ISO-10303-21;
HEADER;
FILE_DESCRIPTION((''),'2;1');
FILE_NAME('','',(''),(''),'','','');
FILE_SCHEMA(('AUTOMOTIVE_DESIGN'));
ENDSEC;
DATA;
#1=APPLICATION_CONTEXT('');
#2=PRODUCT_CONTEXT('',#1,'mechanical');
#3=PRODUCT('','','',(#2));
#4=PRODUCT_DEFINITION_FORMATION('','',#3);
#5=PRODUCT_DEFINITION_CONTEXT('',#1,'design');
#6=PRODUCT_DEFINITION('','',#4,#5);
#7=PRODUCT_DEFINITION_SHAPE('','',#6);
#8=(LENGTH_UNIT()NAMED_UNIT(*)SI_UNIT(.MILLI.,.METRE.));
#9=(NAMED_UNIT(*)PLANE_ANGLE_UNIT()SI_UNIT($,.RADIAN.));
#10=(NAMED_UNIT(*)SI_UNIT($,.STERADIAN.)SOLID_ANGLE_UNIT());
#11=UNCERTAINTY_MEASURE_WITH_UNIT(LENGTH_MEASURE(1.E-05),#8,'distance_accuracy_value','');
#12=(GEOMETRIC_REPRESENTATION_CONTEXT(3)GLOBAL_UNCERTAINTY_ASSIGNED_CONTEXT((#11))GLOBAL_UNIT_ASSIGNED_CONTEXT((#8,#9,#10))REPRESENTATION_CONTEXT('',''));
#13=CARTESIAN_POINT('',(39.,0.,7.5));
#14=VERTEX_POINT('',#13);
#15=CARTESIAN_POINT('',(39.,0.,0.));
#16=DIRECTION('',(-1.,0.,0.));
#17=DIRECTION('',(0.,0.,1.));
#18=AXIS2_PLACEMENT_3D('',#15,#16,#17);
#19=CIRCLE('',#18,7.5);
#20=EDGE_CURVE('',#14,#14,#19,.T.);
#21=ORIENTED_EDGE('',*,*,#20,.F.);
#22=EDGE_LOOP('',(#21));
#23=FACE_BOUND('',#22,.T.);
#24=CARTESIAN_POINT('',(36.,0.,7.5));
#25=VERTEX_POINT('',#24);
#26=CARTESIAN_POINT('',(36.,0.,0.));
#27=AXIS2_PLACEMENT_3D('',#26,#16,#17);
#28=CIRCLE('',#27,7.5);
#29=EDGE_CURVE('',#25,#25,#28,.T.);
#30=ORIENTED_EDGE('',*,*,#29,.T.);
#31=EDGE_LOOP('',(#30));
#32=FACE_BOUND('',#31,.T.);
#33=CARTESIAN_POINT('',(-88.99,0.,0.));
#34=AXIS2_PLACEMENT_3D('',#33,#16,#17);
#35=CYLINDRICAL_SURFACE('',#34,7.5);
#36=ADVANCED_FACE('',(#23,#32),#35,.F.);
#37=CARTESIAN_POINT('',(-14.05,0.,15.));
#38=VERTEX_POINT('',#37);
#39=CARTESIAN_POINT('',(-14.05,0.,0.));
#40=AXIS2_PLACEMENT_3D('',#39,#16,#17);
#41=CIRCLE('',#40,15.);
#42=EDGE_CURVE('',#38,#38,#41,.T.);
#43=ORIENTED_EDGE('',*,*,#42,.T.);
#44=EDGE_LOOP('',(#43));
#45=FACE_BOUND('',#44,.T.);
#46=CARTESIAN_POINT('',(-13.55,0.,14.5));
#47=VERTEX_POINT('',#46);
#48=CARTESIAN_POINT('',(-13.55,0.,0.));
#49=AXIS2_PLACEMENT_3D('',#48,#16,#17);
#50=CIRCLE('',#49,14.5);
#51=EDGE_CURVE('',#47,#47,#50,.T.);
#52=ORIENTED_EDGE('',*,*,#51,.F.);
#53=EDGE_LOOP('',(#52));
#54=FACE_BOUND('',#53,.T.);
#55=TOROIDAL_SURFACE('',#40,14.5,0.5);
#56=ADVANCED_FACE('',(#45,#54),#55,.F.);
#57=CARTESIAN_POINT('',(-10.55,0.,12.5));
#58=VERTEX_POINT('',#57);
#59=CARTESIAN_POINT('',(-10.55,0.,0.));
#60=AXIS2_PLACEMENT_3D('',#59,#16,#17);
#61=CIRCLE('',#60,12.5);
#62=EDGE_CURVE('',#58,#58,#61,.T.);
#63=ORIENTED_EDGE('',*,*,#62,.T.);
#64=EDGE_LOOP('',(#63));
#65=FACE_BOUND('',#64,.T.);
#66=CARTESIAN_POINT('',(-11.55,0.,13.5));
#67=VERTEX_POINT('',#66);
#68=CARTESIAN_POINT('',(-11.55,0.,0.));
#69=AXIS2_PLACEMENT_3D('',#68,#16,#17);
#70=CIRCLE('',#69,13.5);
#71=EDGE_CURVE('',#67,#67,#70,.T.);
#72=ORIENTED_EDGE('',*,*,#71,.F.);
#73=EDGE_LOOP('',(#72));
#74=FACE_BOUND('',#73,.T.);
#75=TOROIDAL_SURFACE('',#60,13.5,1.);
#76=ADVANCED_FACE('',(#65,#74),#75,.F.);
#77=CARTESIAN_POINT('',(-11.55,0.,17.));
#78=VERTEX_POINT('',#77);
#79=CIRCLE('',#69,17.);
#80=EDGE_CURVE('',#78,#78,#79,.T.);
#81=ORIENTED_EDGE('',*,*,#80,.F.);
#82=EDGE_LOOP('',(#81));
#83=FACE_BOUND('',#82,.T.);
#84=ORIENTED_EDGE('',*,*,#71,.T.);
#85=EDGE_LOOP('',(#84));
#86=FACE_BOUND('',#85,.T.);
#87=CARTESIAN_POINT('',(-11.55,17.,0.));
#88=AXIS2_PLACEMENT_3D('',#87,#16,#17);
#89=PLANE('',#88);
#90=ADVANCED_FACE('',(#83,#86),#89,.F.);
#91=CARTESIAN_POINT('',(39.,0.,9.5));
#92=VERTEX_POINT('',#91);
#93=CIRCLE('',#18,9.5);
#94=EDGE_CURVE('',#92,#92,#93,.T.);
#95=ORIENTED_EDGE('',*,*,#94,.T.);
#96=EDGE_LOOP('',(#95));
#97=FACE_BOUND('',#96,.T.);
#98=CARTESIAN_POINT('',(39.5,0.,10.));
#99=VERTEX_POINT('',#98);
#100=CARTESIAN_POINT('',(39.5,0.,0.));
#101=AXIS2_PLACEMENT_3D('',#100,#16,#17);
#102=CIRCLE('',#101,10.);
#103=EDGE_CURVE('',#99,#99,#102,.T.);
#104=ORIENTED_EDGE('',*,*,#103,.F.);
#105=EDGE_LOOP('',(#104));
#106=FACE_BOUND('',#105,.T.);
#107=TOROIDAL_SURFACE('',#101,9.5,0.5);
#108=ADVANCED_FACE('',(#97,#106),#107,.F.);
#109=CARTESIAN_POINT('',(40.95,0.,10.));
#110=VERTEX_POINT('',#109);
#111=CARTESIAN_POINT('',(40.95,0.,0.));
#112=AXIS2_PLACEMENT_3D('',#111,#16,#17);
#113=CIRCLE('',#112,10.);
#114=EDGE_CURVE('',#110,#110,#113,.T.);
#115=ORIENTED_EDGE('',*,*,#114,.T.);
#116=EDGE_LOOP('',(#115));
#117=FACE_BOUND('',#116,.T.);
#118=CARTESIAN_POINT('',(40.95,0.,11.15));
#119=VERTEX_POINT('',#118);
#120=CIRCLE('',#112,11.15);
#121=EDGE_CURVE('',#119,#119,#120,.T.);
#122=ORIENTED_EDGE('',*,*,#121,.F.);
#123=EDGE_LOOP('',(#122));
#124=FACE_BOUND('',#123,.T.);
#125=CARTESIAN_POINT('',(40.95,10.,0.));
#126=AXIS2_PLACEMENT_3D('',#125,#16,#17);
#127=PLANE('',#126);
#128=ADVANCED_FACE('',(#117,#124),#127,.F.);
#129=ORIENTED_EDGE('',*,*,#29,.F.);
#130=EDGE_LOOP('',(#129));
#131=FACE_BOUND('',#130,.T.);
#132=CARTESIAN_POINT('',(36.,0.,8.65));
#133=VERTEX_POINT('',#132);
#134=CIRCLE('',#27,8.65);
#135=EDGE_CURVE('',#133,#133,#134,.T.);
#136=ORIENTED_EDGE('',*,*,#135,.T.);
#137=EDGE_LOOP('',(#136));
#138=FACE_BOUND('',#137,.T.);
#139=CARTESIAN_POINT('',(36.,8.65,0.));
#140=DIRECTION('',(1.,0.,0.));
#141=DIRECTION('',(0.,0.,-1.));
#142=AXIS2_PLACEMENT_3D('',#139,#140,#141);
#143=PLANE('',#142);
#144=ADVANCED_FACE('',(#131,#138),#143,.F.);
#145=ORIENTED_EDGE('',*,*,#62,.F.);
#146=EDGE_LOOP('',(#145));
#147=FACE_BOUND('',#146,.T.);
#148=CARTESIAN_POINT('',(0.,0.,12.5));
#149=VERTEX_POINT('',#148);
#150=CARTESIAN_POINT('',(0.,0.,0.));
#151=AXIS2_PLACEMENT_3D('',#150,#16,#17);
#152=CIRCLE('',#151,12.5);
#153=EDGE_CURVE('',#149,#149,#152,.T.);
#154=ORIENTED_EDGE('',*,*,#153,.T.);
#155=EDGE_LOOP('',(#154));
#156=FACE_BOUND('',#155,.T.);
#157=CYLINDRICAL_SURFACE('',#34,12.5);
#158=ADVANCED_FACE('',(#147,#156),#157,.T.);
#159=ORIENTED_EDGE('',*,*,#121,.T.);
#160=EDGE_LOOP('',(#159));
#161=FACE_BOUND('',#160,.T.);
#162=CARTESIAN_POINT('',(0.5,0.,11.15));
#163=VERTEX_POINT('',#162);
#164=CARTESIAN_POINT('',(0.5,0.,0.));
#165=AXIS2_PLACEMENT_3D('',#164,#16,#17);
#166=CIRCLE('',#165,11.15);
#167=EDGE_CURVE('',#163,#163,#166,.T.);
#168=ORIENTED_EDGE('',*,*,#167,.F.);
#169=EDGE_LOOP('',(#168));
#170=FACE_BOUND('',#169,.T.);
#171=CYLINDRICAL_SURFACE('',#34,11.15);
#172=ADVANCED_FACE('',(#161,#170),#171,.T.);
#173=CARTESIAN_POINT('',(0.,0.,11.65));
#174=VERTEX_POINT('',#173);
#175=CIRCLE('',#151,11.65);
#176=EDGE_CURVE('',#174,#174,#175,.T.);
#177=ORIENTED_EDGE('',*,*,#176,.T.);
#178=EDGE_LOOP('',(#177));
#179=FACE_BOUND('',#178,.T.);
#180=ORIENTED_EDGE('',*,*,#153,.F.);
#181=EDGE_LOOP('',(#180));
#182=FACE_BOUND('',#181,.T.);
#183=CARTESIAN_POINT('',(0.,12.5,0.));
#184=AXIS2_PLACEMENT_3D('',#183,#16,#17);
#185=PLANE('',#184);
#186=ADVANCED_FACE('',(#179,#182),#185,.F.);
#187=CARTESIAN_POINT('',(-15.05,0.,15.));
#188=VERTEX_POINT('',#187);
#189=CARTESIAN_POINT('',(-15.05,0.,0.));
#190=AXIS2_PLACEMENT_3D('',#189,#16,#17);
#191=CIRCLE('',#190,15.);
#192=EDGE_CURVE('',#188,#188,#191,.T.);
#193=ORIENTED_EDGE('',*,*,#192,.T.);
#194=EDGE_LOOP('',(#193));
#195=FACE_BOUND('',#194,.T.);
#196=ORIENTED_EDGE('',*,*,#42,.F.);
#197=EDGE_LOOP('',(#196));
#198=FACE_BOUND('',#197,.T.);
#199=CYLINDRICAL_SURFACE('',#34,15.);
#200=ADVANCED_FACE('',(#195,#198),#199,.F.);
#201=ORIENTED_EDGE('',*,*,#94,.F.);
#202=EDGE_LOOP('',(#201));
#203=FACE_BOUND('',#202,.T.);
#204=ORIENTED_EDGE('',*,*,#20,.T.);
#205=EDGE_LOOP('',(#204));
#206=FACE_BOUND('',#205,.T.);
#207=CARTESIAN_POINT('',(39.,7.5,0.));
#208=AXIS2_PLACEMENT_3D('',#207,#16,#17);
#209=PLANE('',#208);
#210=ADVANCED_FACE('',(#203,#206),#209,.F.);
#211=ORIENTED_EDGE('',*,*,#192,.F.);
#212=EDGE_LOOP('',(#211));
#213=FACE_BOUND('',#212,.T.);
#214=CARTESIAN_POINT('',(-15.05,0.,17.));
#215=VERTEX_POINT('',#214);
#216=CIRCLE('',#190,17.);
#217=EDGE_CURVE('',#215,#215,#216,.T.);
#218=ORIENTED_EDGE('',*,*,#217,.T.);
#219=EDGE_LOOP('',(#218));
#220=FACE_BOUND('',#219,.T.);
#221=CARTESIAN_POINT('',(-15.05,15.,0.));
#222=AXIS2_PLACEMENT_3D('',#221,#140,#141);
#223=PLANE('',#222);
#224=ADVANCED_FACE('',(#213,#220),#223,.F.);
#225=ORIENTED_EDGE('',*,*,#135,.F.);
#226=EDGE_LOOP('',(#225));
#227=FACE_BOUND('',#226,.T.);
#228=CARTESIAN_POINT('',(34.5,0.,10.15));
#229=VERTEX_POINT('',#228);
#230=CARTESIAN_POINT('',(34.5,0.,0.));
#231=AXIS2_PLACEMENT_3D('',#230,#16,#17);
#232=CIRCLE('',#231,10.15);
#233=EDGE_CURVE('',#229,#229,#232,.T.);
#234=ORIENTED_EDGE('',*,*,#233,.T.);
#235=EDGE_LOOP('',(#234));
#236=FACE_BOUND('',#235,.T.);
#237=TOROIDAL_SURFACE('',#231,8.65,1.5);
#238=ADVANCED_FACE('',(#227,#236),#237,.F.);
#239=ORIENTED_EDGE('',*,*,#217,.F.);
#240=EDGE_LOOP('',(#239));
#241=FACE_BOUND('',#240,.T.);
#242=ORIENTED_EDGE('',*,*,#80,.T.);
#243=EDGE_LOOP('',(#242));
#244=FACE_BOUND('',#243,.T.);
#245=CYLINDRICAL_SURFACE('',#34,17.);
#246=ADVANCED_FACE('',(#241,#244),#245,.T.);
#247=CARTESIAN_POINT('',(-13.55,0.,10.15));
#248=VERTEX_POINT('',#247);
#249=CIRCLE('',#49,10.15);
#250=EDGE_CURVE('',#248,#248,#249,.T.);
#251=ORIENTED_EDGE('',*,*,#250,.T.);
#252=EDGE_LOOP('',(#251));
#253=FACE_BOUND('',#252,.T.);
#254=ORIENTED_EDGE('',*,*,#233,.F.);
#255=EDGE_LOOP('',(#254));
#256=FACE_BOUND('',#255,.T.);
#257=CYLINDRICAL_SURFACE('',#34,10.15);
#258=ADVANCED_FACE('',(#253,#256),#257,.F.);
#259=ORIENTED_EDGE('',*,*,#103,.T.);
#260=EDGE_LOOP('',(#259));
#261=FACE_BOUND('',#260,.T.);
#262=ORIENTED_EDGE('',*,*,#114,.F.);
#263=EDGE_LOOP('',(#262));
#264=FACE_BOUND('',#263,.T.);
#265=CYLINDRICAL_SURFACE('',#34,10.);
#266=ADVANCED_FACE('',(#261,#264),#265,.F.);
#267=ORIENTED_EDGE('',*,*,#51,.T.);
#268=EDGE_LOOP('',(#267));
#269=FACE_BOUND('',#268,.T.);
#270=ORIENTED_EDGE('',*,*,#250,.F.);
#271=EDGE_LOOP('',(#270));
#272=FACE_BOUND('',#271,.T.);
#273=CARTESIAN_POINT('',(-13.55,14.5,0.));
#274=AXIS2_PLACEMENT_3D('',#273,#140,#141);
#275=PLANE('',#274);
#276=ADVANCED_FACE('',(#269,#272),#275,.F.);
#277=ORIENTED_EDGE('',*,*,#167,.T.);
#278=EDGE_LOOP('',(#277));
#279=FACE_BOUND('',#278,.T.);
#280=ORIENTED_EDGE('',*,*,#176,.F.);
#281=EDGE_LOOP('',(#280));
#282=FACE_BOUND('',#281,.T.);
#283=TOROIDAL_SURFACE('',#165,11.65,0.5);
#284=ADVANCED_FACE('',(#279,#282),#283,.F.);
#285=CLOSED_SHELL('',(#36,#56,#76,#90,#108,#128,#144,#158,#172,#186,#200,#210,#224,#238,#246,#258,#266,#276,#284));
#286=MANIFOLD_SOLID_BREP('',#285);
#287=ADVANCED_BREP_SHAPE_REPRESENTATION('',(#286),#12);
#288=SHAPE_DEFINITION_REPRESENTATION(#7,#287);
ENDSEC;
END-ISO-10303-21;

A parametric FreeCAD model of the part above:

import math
import FreeCAD as App
import Part
import Sketcher
Q = App.Units.Quantity

doc = App.newDocument("Part")
body = doc.addObject("PartDesign::Body", "Body")

# Sketch on XY plane
sketch1 = body.newObject("Sketcher::SketchObject", "Sketch")
sketch1.AttachmentSupport = (doc.getObject("XY_Plane"), [""])
sketch1.MapMode = "FlatFace"
sketch1.addGeometry([
    Part.LineSegment(App.Vector(0, 11.65, 0), App.Vector(0, 12.5, 0)),  # 0
    Part.LineSegment(App.Vector(0, 12.5, 0), App.Vector(-10.55, 12.5, 0)),  # 1
    Part.ArcOfCircle(Part.Circle(App.Vector(-10.55, 13.5, 0), App.Vector(0, 0, 1), 1), math.radians(-180), math.radians(-90)),  # 2
    Part.LineSegment(App.Vector(-11.55, 13.5, 0), App.Vector(-11.55, 17, 0)),  # 3
    Part.LineSegment(App.Vector(-11.55, 17, 0), App.Vector(-15.05, 17, 0)),  # 4
    Part.LineSegment(App.Vector(-15.05, 17, 0), App.Vector(-15.05, 15, 0)),  # 5
    Part.LineSegment(App.Vector(-15.05, 15, 0), App.Vector(-14.05, 15, 0)),  # 6
    Part.ArcOfCircle(Part.Circle(App.Vector(-14.05, 14.5, 0), App.Vector(0, 0, 1), 0.5), math.radians(0), math.radians(90)),  # 7
    Part.LineSegment(App.Vector(-13.55, 14.5, 0), App.Vector(-13.55, 10.15, 0)),  # 8
    Part.LineSegment(App.Vector(-13.55, 10.15, 0), App.Vector(34.5, 10.15, 0)),  # 9
    Part.ArcOfCircle(Part.Circle(App.Vector(34.5, 8.65, 0), App.Vector(0, 0, 1), 1.5), math.radians(0), math.radians(90)),  # 10
    Part.LineSegment(App.Vector(36, 8.65, 0), App.Vector(36, 7.5, 0)),  # 11
    Part.LineSegment(App.Vector(36, 7.5, 0), App.Vector(39, 7.5, 0)),  # 12
    Part.LineSegment(App.Vector(39, 7.5, 0), App.Vector(39, 9.5, 0)),  # 13
    Part.ArcOfCircle(Part.Circle(App.Vector(39.5, 9.5, 0), App.Vector(0, 0, 1), 0.5), math.radians(90), math.radians(180)),  # 14
    Part.LineSegment(App.Vector(39.5, 10, 0), App.Vector(40.95, 10, 0)),  # 15
    Part.LineSegment(App.Vector(40.95, 10, 0), App.Vector(40.95, 11.15, 0)),  # 16
    Part.LineSegment(App.Vector(40.95, 11.15, 0), App.Vector(0.5, 11.15, 0)),  # 17
    Part.ArcOfCircle(Part.Circle(App.Vector(0.5, 11.65, 0), App.Vector(0, 0, 1), 0.5), math.radians(180), math.radians(270)),  # 18
], False)
sketch1.addConstraint([
    Sketcher.Constraint("Coincident", 0, 2, 1, 1),
    Sketcher.Constraint("Tangent", 1, 2, 2, 2),
    Sketcher.Constraint("Tangent", 2, 1, 3, 1),
    Sketcher.Constraint("Coincident", 3, 2, 4, 1),
    Sketcher.Constraint("Coincident", 4, 2, 5, 1),
    Sketcher.Constraint("Coincident", 5, 2, 6, 1),
    Sketcher.Constraint("Tangent", 6, 2, 7, 2),
    Sketcher.Constraint("Tangent", 7, 1, 8, 1),
    Sketcher.Constraint("Coincident", 8, 2, 9, 1),
    Sketcher.Constraint("Tangent", 9, 2, 10, 2),
    Sketcher.Constraint("Tangent", 10, 1, 11, 1),
    Sketcher.Constraint("Coincident", 11, 2, 12, 1),
    Sketcher.Constraint("Coincident", 12, 2, 13, 1),
    Sketcher.Constraint("Tangent", 13, 2, 14, 2),
    Sketcher.Constraint("Tangent", 14, 1, 15, 1),
    Sketcher.Constraint("Coincident", 15, 2, 16, 1),
    Sketcher.Constraint("Coincident", 16, 2, 17, 1),
    Sketcher.Constraint("Tangent", 17, 2, 18, 2),
    Sketcher.Constraint("Tangent", 18, 1, 0, 1),
    Sketcher.Constraint("Vertical", 0),
    Sketcher.Constraint("Horizontal", 1),
    Sketcher.Constraint("Vertical", 3),
    Sketcher.Constraint("Horizontal", 4),
    Sketcher.Constraint("Vertical", 5),
    Sketcher.Constraint("Horizontal", 6),
    Sketcher.Constraint("Vertical", 8),
    Sketcher.Constraint("Horizontal", 9),
    Sketcher.Constraint("Vertical", 11),
    Sketcher.Constraint("Horizontal", 12),
    Sketcher.Constraint("Vertical", 13),
    Sketcher.Constraint("Horizontal", 15),
    Sketcher.Constraint("Vertical", 16),
    Sketcher.Constraint("Horizontal", 17),
    Sketcher.Constraint("Equal", 7, 14),
    Sketcher.Constraint("Equal", 14, 18),
    Sketcher.Constraint("PointOnObject", 0, 2, -2),
    Sketcher.Constraint("Equal", 4, 3),
    Sketcher.Constraint("Equal", 5, 13),
    Sketcher.Constraint("Equal", 11, 16),
    Sketcher.Constraint("Radius", 2, Q("1 mm")),
    Sketcher.Constraint("Radius", 7, Q("0.5 mm")),
    Sketcher.Constraint("Radius", 10, Q("1.5 mm")),
    Sketcher.Constraint("DistanceX", 6, 1, 6, 2, Q("1 mm")),
    Sketcher.Constraint("DistanceX", 12, 1, 12, 2, Q("3 mm")),
    Sketcher.Constraint("DistanceY", 5, 2, 5, 1, Q("2 mm")),
    Sketcher.Constraint("DistanceX", 4, 2, 4, 1, Q("3.5 mm")),
    Sketcher.Constraint("DistanceY", -1, 1, 3, 2, Q("17 mm")),
    Sketcher.Constraint("DistanceX", -1, 1, 10, 1, Q("36 mm")),
    Sketcher.Constraint("DistanceY", -1, 1, 14, 1, Q("10 mm")),
    Sketcher.Constraint("DistanceX", 1, 2, 1, 1, Q("10.55 mm")),
    Sketcher.Constraint("DistanceX", 15, 1, 15, 2, Q("1.45 mm")),
    Sketcher.Constraint("DistanceY", 0, 1, 0, 2, Q("0.85 mm")),
])
revolution = body.newObject("PartDesign::Revolution", "Revolution")
revolution.Profile = sketch1
revolution.ReferenceAxis = (sketch1, ["H_Axis"])
revolution.Angle = 360

doc.recompute()
